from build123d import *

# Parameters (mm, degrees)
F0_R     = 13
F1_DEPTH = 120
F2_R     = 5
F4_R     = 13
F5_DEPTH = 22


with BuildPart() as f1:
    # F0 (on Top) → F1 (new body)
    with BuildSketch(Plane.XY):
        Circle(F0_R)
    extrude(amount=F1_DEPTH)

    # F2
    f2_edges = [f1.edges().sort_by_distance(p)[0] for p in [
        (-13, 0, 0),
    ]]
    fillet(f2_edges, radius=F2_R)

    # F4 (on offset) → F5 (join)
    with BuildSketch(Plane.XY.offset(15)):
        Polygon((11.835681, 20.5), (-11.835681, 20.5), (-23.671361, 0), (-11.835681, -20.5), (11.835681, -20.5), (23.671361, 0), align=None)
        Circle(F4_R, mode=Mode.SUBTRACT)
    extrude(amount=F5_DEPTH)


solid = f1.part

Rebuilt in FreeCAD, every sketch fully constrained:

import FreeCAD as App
import Part
import Sketcher

V = App.Vector
Q = App.Units.Quantity


def edges_at(feature, points):
    """Names of the edges that pass closest to the given points."""
    edges = feature.Shape.Edges
    near = lambda p: min(range(len(edges)), key=lambda i: edges[i].distToShape(Part.Vertex(*p))[0])
    return sorted({f"Edge{near(p) + 1}" for p in points})

doc = App.newDocument("Part")
body = doc.addObject("PartDesign::Body", "Body")

sketch1 = body.newObject("Sketcher::SketchObject", "Sketch")
sketch1.AttachmentSupport = (doc.getObject("XY_Plane"), [""])
sketch1.MapMode = "FlatFace"
sketch1.addGeometry(Part.Circle(V(0, 0, 0), V(0, 0, 1), 13), False)
sketch1.addConstraint([
    Sketcher.Constraint("Coincident", 0, 3, -1, 1),
    Sketcher.Constraint("Diameter", 0, Q("26 mm")),
])
pad1 = body.newObject("PartDesign::Pad", "Pad")
pad1.Profile = sketch1
pad1.Length = 120
doc.recompute()

fillet = body.newObject("PartDesign::Fillet", "Fillet")
fillet.Base = (pad1, edges_at(pad1, [(-13, 0, 0)]))
fillet.Radius = 5

sketch2 = body.newObject("Sketcher::SketchObject", "Sketch001")
sketch2.AttachmentSupport = (doc.getObject("XY_Plane"), [""])
sketch2.MapMode = "FlatFace"
sketch2.AttachmentOffset = App.Placement(V(0, 0, 15), App.Rotation())
sketch2.addGeometry([
    Part.LineSegment(V(12, 20, 0), V(-12, 20, 0)),
    Part.LineSegment(V(-12, 20, 0), V(-24, 0, 0)),
    Part.LineSegment(V(-24, 0, 0), V(-12, -20, 0)),
    Part.LineSegment(V(-12, -20, 0), V(12, -20, 0)),
    Part.LineSegment(V(12, -20, 0), V(24, 0, 0)),
    Part.LineSegment(V(24, 0, 0), V(12, 20, 0)),
    Part.Circle(V(0, 0, 0), V(0, 0, 1), 13),
], False)
sketch2.addConstraint([
    Sketcher.Constraint("Coincident", 0, 2, 1, 1),
    Sketcher.Constraint("Coincident", 1, 2, 2, 1),
    Sketcher.Constraint("Coincident", 2, 2, 3, 1),
    Sketcher.Constraint("Coincident", 3, 2, 4, 1),
    Sketcher.Constraint("Coincident", 4, 2, 5, 1),
    Sketcher.Constraint("Coincident", 5, 2, 0, 1),
    Sketcher.Constraint("Horizontal", 0),
    Sketcher.Constraint("Horizontal", 3),
    Sketcher.Constraint("Coincident", 6, 3, -1, 1),
    Sketcher.Constraint("Symmetric", 0, 2, 3, 2, -1, 1),
    Sketcher.Constraint("Symmetric", 1, 2, 4, 2, -1, 1),
    Sketcher.Constraint("PointOnObject", 1, 2, -1),
    Sketcher.Constraint("Parallel", 2, 5),
    Sketcher.Constraint("Vertical", 0, 2, 2, 2),
    Sketcher.Constraint("Diameter", 6, Q("26 mm")),
    Sketcher.Constraint("Angle", 1, Q("-119.999999 deg")),
    Sketcher.Constraint("DistanceY", 2, 2, 0, 2, Q("41 mm")),
    Sketcher.Constraint("DistanceX", 0, 2, 0, 1, Q("23.671362 mm")),
])
pad2 = body.newObject("PartDesign::Pad", "Pad001")
pad2.Profile = sketch2
pad2.Length = 22

doc.recompute()
